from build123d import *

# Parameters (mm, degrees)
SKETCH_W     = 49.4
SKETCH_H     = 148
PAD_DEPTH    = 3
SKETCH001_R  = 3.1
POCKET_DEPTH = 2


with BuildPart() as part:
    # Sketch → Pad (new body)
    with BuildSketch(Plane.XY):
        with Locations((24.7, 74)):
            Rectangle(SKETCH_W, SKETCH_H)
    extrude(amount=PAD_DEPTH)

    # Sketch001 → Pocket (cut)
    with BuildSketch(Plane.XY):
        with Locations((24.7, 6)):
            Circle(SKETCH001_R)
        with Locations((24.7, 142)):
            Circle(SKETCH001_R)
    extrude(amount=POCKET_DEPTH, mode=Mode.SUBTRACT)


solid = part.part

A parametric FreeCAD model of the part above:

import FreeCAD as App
import Part
import Sketcher
from FreeCAD import Vector
Q = App.Units.Quantity


def add_polygon(sketch, points):
    """Adds a closed chain of lines whose ends are joined by coincident constraints."""
    first, n = sketch.GeometryCount, len(points)
    for a, b in zip(points, points[1:] + points[:1]):
        sketch.addGeometry(Part.LineSegment(App.Vector(*a, 0), App.Vector(*b, 0)), False)
    for i in range(n):
        sketch.addConstraint(Sketcher.Constraint("Coincident", first + i, 2, first + (i + 1) % n, 1))

doc = App.newDocument("Part")
body = doc.addObject("PartDesign::Body", "Body")

# Sketch on XY plane
sketch1 = body.newObject("Sketcher::SketchObject", "Sketch")
sketch1.AttachmentSupport = (doc.getObject("XY_Plane"), [""])
sketch1.MapMode = "FlatFace"
add_polygon(sketch1, [(0, 148), (0, 0), (49.4, 0), (49.4, 148)])  # lines 0-3
sketch1.addConstraint([
    Sketcher.Constraint("Vertical", 0),
    Sketcher.Constraint("Horizontal", 1),
    Sketcher.Constraint("Vertical", 2),
    Sketcher.Constraint("Horizontal", 3),
    Sketcher.Constraint("Coincident", 0, 2, -1, 1),
    Sketcher.Constraint("DistanceY", 0, 2, 0, 1, Q("148 mm")),
    Sketcher.Constraint("DistanceX", 1, 1, 1, 2, Q("49.4 mm")),
])
pad1 = body.newObject("PartDesign::Pad", "Pad")
pad1.Profile = sketch1
pad1.Length = 3

# Sketch on XY plane
sketch2 = body.newObject("Sketcher::SketchObject", "Sketch001")
sketch2.AttachmentSupport = (doc.getObject("XY_Plane"), [""])
sketch2.MapMode = "FlatFace"
sketch2.addGeometry([
    Part.Circle(Vector(24.7, 6, 0), Vector(0, 0, 1), 3.1),
    Part.Circle(Vector(24.7, 142, 0), Vector(0, 0, 1), 3.1),
], False)
sketch2.addConstraint([
    Sketcher.Constraint("Equal", 0, 1),
    Sketcher.Constraint("Vertical", 0, 3, 1, 3),
    Sketcher.Constraint("Diameter", 0, Q("6.2 mm")),
    Sketcher.Constraint("DistanceY", -1, 1, 0, 3, Q("6 mm")),
    Sketcher.Constraint("DistanceY", -1, 1, 1, 3, Q("142 mm")),
    Sketcher.Constraint("DistanceX", -1, 1, 0, 3, Q("24.7 mm")),
])
pocket1 = body.newObject("PartDesign::Pocket", "Pocket")
pocket1.Profile = sketch2
pocket1.Length = 2
pocket1.Reversed = True

doc.recompute()
